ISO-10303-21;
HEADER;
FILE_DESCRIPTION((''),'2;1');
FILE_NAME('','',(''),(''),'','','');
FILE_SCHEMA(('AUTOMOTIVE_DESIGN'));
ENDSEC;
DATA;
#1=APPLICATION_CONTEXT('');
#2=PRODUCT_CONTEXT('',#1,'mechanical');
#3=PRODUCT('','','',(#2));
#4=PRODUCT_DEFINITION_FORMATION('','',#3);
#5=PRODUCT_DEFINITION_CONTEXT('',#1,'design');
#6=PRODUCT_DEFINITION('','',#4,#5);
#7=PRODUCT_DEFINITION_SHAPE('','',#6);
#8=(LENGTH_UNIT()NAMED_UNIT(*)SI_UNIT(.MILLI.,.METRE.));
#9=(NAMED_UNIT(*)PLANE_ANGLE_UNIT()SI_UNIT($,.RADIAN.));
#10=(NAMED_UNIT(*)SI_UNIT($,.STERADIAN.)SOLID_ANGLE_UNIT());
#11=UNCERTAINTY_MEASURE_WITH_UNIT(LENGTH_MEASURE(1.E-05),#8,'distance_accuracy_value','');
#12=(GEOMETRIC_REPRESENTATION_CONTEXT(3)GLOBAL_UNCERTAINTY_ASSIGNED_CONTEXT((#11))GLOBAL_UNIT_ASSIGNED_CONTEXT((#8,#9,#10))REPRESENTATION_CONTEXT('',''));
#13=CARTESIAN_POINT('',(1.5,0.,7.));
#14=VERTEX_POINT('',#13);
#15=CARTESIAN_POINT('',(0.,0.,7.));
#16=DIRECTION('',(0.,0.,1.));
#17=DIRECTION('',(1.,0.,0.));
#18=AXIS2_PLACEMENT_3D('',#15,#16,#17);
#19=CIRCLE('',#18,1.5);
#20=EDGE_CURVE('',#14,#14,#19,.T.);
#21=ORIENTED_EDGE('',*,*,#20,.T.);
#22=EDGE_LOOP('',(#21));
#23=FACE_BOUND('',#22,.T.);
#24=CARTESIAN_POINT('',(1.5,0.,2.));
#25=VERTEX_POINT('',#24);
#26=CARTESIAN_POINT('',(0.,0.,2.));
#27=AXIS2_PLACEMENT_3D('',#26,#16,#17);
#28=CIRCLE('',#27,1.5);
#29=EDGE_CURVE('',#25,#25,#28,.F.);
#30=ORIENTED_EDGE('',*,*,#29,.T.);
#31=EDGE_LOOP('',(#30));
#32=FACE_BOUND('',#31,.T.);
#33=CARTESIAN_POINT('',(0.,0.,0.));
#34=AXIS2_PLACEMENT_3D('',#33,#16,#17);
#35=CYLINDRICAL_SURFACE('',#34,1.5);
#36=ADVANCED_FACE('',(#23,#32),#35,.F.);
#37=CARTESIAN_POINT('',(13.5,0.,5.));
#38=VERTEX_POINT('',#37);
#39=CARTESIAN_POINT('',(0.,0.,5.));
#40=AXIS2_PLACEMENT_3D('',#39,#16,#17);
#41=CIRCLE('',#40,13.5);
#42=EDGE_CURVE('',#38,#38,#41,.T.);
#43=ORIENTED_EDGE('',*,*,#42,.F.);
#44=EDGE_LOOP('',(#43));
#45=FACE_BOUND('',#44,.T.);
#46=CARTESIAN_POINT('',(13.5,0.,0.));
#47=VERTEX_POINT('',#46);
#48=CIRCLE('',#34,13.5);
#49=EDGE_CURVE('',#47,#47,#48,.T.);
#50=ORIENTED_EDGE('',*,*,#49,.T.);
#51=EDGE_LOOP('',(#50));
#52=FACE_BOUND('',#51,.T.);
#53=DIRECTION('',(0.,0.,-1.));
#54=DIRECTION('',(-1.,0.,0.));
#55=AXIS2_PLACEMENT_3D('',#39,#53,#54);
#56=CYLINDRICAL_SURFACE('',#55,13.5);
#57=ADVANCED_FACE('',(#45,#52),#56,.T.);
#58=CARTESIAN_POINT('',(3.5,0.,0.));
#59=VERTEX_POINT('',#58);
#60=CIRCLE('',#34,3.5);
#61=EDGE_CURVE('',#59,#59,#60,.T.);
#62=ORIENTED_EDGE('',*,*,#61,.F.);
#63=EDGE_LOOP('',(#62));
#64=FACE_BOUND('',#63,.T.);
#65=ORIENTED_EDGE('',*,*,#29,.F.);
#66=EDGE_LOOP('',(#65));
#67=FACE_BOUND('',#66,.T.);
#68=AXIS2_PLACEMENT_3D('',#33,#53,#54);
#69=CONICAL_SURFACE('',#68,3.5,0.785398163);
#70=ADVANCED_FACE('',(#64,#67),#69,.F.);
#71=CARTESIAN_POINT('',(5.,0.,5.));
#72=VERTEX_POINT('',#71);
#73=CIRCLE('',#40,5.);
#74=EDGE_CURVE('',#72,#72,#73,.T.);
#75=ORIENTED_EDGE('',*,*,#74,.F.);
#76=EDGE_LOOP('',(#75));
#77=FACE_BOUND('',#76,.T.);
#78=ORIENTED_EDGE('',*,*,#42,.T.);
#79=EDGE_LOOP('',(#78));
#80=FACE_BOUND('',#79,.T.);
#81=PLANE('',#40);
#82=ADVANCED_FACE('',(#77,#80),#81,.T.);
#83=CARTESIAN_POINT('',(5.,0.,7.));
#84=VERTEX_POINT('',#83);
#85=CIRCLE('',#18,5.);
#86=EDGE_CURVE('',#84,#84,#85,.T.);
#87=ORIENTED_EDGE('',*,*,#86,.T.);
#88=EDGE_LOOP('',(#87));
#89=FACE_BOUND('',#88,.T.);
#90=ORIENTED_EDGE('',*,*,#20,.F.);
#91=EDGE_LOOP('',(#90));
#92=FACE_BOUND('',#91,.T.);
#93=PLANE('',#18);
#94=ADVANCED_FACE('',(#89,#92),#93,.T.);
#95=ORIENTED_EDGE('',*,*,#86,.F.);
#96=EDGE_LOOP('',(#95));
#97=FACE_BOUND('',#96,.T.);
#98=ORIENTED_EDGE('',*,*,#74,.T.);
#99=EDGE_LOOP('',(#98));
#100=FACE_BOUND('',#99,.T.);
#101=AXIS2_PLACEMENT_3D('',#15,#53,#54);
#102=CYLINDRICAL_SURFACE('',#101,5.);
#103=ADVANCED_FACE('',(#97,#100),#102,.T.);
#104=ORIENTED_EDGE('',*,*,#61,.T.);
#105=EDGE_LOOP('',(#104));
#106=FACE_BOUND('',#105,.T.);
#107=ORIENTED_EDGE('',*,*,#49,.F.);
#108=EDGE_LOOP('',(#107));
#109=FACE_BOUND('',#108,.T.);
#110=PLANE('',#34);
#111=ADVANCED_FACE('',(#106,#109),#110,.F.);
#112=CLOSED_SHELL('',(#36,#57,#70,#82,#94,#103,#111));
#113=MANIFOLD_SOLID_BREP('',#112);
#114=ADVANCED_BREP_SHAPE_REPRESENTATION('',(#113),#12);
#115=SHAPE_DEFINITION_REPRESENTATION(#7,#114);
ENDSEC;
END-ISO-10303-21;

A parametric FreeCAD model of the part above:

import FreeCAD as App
import Part
import Sketcher
from FreeCAD import Vector


def edges_at(feature, points):
    """Names of the edges that pass closest to the given points."""
    edges = feature.Shape.Edges
    near = lambda p: min(range(len(edges)), key=lambda i: edges[i].distToShape(Part.Vertex(*p))[0])
    return sorted({f"Edge{near(p) + 1}" for p in points})

doc = App.newDocument("Part")
body = doc.addObject("PartDesign::Body", "Body")

# Sketch on XY plane
sketch1 = doc.addObject("Sketcher::SketchObject", "Sketch")
body.addObject(sketch1)
sketch1.AttachmentSupport = (doc.XY_Plane, [""])
sketch1.MapMode = "FlatFace"
sketch1.addGeometry(Part.Circle(Vector(0, 0, 0), Vector(0, 0, 1), 14), False)
sketch1.addConstraint(Sketcher.Constraint("Coincident", 0, 3, -1, 1))
sketch1.addConstraint(Sketcher.Constraint("Diameter", 0, 27.0))
pad1 = doc.addObject("PartDesign::Pad", "Pad")
body.addObject(pad1)
pad1.Profile = sketch1
pad1.Length = 5

# Sketch on XY plane
sketch2 = doc.addObject("Sketcher::SketchObject", "Sketch001")
body.addObject(sketch2)
sketch2.AttachmentSupport = (doc.XY_Plane, [""])
sketch2.MapMode = "FlatFace"
sketch2.AttachmentOffset = App.Placement(Vector(0, 0, 5), App.Rotation())
sketch2.addGeometry(Part.Circle(Vector(0, 0, 0), Vector(0, 0, 1), 5), False)
sketch2.addConstraint(Sketcher.Constraint("Coincident", 0, 3, -1, 1))
sketch2.addConstraint(Sketcher.Constraint("Diameter", 0, 10.0))
pad2 = doc.addObject("PartDesign::Pad", "Pad001")
body.addObject(pad2)
pad2.Profile = sketch2
pad2.Length = 2

# Sketch on XY plane
sketch3 = doc.addObject("Sketcher::SketchObject", "Sketch002")
body.addObject(sketch3)
sketch3.AttachmentSupport = (doc.XY_Plane, [""])
sketch3.MapMode = "FlatFace"
sketch3.AttachmentOffset = App.Placement(Vector(0, 0, 7), App.Rotation())
sketch3.addGeometry(Part.Circle(Vector(0, 0, 0), Vector(0, 0, 1), 1.5), False)
sketch3.addConstraint(Sketcher.Constraint("Coincident", 0, 3, -1, 1))
sketch3.addConstraint(Sketcher.Constraint("Diameter", 0, 3.0))
pocket1 = doc.addObject("PartDesign::Pocket", "Pocket")
body.addObject(pocket1)
pocket1.Profile = sketch3
pocket1.Type = "ThroughAll"
doc.recompute()

chamfer = doc.addObject("PartDesign::Chamfer", "Chamfer")
body.addObject(chamfer)
chamfer.Base = (pocket1, edges_at(pocket1, [(-1.5, 0, 0)]))
chamfer.Size = 2

doc.recompute()
